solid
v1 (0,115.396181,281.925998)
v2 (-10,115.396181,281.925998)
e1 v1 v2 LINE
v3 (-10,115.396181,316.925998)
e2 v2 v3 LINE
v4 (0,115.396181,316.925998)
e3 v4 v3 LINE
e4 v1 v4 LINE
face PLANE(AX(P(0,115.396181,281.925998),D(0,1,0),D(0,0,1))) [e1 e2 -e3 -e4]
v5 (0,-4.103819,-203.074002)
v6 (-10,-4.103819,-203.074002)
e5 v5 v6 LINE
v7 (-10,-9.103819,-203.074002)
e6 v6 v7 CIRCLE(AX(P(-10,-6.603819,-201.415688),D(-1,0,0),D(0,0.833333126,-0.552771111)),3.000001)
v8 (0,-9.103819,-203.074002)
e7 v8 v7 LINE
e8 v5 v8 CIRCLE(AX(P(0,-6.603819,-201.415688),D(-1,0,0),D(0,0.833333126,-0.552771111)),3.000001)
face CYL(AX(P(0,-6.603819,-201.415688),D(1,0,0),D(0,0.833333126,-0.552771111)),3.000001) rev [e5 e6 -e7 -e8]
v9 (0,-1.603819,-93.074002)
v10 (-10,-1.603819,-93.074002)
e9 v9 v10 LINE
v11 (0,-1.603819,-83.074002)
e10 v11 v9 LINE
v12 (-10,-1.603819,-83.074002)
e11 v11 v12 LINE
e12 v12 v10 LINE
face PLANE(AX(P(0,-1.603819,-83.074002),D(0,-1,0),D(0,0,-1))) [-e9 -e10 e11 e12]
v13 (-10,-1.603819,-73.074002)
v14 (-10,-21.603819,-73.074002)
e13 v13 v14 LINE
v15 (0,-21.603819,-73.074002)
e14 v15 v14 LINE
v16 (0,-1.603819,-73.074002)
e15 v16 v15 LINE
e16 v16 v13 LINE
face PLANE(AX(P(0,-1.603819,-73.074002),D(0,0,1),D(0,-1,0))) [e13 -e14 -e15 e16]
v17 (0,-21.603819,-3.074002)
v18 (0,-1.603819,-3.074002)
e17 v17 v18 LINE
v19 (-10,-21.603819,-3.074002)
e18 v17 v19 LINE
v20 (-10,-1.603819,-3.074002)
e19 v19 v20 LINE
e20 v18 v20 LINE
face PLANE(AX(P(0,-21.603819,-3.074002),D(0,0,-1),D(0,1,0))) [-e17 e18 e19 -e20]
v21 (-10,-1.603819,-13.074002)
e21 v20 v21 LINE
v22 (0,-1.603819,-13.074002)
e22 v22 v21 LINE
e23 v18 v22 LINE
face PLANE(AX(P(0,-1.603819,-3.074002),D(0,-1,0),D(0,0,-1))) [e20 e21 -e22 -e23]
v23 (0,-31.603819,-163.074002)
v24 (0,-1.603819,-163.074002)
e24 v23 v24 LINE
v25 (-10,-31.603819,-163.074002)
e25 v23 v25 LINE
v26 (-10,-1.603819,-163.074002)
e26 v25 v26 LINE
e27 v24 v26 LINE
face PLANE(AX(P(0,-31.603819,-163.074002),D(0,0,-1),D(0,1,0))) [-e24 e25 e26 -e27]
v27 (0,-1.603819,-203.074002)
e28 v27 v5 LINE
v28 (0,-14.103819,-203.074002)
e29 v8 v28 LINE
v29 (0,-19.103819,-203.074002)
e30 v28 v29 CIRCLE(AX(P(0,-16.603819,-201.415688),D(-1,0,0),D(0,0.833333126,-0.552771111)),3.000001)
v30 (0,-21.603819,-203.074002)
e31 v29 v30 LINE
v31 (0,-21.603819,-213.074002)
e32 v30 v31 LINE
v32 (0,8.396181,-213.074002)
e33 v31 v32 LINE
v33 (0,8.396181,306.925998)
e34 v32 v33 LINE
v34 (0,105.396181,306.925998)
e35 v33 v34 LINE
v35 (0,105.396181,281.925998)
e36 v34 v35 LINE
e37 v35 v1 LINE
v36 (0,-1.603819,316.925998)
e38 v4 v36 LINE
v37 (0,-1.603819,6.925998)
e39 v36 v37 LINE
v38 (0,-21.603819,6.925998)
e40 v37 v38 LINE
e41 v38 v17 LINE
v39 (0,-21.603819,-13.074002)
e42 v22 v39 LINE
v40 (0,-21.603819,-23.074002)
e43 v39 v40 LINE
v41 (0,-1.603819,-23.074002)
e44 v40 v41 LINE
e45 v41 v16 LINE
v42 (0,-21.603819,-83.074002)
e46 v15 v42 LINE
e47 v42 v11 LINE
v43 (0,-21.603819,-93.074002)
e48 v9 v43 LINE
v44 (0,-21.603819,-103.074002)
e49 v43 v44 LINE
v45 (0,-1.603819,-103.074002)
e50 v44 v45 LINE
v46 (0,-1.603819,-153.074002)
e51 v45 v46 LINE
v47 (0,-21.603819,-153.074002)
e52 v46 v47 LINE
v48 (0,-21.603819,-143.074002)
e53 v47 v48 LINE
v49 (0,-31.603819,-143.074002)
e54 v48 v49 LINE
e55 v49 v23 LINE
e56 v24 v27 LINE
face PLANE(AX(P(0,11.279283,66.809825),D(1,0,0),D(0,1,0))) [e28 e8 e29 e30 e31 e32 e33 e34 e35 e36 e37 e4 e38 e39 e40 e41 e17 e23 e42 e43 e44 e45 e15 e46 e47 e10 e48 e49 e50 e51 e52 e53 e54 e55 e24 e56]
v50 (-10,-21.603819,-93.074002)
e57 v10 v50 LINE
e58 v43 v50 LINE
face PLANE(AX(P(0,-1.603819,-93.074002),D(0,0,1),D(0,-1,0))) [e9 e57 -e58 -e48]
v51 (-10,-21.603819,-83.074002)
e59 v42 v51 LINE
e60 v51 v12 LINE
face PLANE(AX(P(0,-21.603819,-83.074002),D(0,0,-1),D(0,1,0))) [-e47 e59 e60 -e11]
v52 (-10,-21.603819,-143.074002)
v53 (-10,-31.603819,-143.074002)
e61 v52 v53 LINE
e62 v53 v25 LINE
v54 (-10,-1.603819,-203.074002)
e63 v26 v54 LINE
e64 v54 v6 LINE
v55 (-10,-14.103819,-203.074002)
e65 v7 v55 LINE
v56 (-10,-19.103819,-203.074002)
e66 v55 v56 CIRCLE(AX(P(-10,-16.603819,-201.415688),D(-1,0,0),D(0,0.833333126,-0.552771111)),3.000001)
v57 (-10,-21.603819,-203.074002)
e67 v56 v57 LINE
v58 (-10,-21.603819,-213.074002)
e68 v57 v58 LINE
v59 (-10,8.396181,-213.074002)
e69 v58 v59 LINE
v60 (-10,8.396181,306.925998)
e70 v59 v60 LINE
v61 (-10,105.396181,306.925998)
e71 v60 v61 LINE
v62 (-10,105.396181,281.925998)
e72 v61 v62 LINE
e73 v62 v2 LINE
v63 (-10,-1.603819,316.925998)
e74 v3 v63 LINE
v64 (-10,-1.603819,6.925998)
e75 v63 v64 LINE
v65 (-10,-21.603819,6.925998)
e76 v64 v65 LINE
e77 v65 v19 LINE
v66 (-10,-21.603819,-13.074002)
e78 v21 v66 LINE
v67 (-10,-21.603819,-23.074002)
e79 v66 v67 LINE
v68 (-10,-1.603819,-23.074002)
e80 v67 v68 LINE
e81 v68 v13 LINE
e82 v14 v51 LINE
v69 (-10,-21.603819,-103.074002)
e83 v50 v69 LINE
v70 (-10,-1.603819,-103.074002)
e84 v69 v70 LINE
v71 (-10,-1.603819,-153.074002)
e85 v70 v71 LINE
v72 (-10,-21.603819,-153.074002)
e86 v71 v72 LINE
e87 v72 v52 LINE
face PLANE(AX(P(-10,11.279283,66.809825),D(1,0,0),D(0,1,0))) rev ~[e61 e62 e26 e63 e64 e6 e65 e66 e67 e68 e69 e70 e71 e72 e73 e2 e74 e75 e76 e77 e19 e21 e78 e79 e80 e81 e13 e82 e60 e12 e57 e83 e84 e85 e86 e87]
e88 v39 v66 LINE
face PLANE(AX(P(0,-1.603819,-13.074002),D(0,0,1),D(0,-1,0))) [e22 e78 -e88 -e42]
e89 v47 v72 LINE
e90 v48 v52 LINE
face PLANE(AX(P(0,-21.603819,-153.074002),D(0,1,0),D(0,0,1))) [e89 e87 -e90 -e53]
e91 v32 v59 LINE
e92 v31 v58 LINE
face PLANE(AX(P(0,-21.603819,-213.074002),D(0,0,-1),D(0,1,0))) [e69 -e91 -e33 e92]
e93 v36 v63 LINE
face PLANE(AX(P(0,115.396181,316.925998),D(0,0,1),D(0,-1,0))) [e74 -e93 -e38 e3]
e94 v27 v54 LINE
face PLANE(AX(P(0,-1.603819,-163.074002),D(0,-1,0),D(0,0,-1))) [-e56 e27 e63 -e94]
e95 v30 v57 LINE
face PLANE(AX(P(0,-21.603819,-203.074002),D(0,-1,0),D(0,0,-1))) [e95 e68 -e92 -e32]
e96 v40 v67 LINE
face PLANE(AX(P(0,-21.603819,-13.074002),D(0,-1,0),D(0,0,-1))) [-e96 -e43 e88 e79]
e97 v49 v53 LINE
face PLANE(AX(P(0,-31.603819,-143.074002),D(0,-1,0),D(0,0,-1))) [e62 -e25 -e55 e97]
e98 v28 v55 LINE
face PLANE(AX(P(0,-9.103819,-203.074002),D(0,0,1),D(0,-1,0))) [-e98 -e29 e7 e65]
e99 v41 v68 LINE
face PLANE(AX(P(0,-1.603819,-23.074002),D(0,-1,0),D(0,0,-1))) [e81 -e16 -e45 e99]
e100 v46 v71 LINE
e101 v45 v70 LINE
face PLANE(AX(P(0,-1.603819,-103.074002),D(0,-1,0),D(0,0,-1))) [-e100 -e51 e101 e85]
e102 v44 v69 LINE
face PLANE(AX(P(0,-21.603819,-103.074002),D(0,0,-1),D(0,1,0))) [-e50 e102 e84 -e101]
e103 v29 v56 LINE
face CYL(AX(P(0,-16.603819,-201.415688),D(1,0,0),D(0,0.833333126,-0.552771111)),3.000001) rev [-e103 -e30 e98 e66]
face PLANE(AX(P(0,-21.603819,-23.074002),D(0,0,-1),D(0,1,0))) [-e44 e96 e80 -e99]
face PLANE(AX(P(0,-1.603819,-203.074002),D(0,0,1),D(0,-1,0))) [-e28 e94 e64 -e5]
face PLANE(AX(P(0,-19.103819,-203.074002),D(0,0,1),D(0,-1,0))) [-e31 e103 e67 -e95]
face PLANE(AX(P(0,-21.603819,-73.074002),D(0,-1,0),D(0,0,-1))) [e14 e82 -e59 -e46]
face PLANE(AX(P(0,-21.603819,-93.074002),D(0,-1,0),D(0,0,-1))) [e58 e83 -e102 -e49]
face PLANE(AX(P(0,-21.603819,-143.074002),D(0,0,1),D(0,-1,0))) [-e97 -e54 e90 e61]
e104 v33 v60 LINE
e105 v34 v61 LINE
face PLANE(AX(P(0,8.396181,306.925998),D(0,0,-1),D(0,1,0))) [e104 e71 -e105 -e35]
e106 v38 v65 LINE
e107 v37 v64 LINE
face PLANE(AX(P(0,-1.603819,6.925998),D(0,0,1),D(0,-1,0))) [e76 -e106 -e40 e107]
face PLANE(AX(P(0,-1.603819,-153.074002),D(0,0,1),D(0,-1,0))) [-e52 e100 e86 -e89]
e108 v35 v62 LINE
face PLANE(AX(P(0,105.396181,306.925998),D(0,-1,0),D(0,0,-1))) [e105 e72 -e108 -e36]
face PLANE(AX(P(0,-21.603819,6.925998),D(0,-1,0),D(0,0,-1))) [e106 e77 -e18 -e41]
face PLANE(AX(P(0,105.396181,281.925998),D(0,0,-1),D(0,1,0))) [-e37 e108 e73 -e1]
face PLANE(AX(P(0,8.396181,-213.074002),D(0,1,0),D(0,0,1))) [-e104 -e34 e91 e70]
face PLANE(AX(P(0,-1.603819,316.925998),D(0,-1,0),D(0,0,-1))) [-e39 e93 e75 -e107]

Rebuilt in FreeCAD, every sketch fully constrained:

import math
import FreeCAD as App
import Part
import Sketcher

V = App.Vector
Q = App.Units.Quantity

doc = App.newDocument("Part")
params = doc.addObject("Spreadsheet::Sheet", "Params")
for row, (alias, value) in enumerate([
    ("sketch1_radius", "3.000001 mm"),
    ("sketch1_width", "117 mm"),
    ("sketch1_width2", "20 mm"),
    ("sketch1_width3", "10 mm"),
    ("sketch1_width4", "5 mm"),
    ("pad1_length", "10 mm"),
], start=1):
    params.set(f"A{row}", alias)
    params.set(f"B{row}", "=" + value)
    params.setAlias(f"B{row}", alias)

body = doc.addObject("PartDesign::Body", "Body")

# Sketch on YZ plane
sketch1 = doc.addObject("Sketcher::SketchObject", "Sketch")
body.addObject(sketch1)
sketch1.AttachmentSupport = (doc.YZ_Plane, [""])
sketch1.MapMode = "FlatFace"
sketch1.addGeometry([
    Part.LineSegment(V(115.396181, 316.925998, 0), V(-1.603819, 316.925998, 0)),  # 0
    Part.LineSegment(V(-1.603819, 316.925998, 0), V(-1.603819, 6.925998, 0)),  # 1
    Part.LineSegment(V(-1.603819, 6.925998, 0), V(-21.603819, 6.925998, 0)),  # 2
    Part.LineSegment(V(-21.603819, 6.925998, 0), V(-21.603819, -3.074002, 0)),  # 3
    Part.LineSegment(V(-21.603819, -3.074002, 0), V(-1.603819, -3.074002, 0)),  # 4
    Part.LineSegment(V(-1.603819, -3.074002, 0), V(-1.603819, -13.074002, 0)),  # 5
    Part.LineSegment(V(-1.603819, -13.074002, 0), V(-21.603819, -13.074002, 0)),  # 6
    Part.LineSegment(V(-21.603819, -13.074002, 0), V(-21.603819, -23.074002, 0)),  # 7
    Part.LineSegment(V(-21.603819, -23.074002, 0), V(-1.603819, -23.074002, 0)),  # 8
    Part.LineSegment(V(-1.603819, -23.074002, 0), V(-1.603819, -73.074002, 0)),  # 9
    Part.LineSegment(V(-1.603819, -73.074002, 0), V(-21.603819, -73.074002, 0)),  # 10
    Part.LineSegment(V(-21.603819, -73.074002, 0), V(-21.603819, -83.074002, 0)),  # 11
    Part.LineSegment(V(-21.603819, -83.074002, 0), V(-1.603819, -83.074002, 0)),  # 12
    Part.LineSegment(V(-1.603819, -83.074002, 0), V(-1.603819, -93.074002, 0)),  # 13
    Part.LineSegment(V(-1.603819, -93.074002, 0), V(-21.603819, -93.074002, 0)),  # 14
    Part.LineSegment(V(-21.603819, -93.074002, 0), V(-21.603819, -103.074002, 0)),  # 15
    Part.LineSegment(V(-21.603819, -103.074002, 0), V(-1.603819, -103.074002, 0)),  # 16
    Part.LineSegment(V(-1.603819, -103.074002, 0), V(-1.603819, -153.074002, 0)),  # 17
    Part.LineSegment(V(-1.603819, -153.074002, 0), V(-21.603819, -153.074002, 0)),  # 18
    Part.LineSegment(V(-21.603819, -153.074002, 0), V(-21.603819, -143.074002, 0)),  # 19
    Part.LineSegment(V(-21.603819, -143.074002, 0), V(-31.603819, -143.074002, 0)),  # 20
    Part.LineSegment(V(-31.603819, -143.074002, 0), V(-31.603819, -163.074002, 0)),  # 21
    Part.LineSegment(V(-31.603819, -163.074002, 0), V(-1.603819, -163.074002, 0)),  # 22
    Part.LineSegment(V(-1.603819, -163.074002, 0), V(-1.603819, -203.074002, 0)),  # 23
    Part.LineSegment(V(-1.603819, -203.074002, 0), V(-4.103819, -203.074002, 0)),  # 24
    Part.ArcOfCircle(Part.Circle(V(-6.603819, -201.415688, 0), V(0, 0, 1), 3.000001), math.radians(-146.442669), math.radians(-33.557331)),  # 25
    Part.LineSegment(V(-9.103819, -203.074002, 0), V(-14.103819, -203.074002, 0)),  # 26
    Part.ArcOfCircle(Part.Circle(V(-16.603819, -201.415688, 0), V(0, 0, 1), 3.000001), math.radians(-146.442669), math.radians(-33.557331)),  # 27
    Part.LineSegment(V(-19.103819, -203.074002, 0), V(-21.603819, -203.074002, 0)),  # 28
    Part.LineSegment(V(-21.603819, -203.074002, 0), V(-21.603819, -213.074002, 0)),  # 29
    Part.LineSegment(V(-21.603819, -213.074002, 0), V(8.396181, -213.074002, 0)),  # 30
    Part.LineSegment(V(8.396181, -213.074002, 0), V(8.396181, 306.925998, 0)),  # 31
    Part.LineSegment(V(8.396181, 306.925998, 0), V(105.396181, 306.925998, 0)),  # 32
    Part.LineSegment(V(105.396181, 306.925998, 0), V(105.396181, 281.925998, 0)),  # 33
    Part.LineSegment(V(105.396181, 281.925998, 0), V(115.396181, 281.925998, 0)),  # 34
    Part.LineSegment(V(115.396181, 281.925998, 0), V(115.396181, 316.925998, 0)),  # 35
], False)
sketch1.addConstraint([
    Sketcher.Constraint("Coincident", 0, 2, 1, 1),
    Sketcher.Constraint("Coincident", 1, 2, 2, 1),
    Sketcher.Constraint("Coincident", 2, 2, 3, 1),
    Sketcher.Constraint("Coincident", 3, 2, 4, 1),
    Sketcher.Constraint("Coincident", 4, 2, 5, 1),
    Sketcher.Constraint("Coincident", 5, 2, 6, 1),
    Sketcher.Constraint("Coincident", 6, 2, 7, 1),
    Sketcher.Constraint("Coincident", 7, 2, 8, 1),
    Sketcher.Constraint("Coincident", 8, 2, 9, 1),
    Sketcher.Constraint("Coincident", 9, 2, 10, 1),
    Sketcher.Constraint("Coincident", 10, 2, 11, 1),
    Sketcher.Constraint("Coincident", 11, 2, 12, 1),
    Sketcher.Constraint("Coincident", 12, 2, 13, 1),
    Sketcher.Constraint("Coincident", 13, 2, 14, 1),
    Sketcher.Constraint("Coincident", 14, 2, 15, 1),
    Sketcher.Constraint("Coincident", 15, 2, 16, 1),
    Sketcher.Constraint("Coincident", 16, 2, 17, 1),
    Sketcher.Constraint("Coincident", 17, 2, 18, 1),
    Sketcher.Constraint("Coincident", 18, 2, 19, 1),
    Sketcher.Constraint("Coincident", 19, 2, 20, 1),
    Sketcher.Constraint("Coincident", 20, 2, 21, 1),
    Sketcher.Constraint("Coincident", 21, 2, 22, 1),
    Sketcher.Constraint("Coincident", 22, 2, 23, 1),
    Sketcher.Constraint("Coincident", 23, 2, 24, 1),
    Sketcher.Constraint("Coincident", 24, 2, 25, 2),
    Sketcher.Constraint("Coincident", 25, 1, 26, 1),
    Sketcher.Constraint("Coincident", 26, 2, 27, 2),
    Sketcher.Constraint("Coincident", 27, 1, 28, 1),
    Sketcher.Constraint("Coincident", 28, 2, 29, 1),
    Sketcher.Constraint("Coincident", 29, 2, 30, 1),
    Sketcher.Constraint("Coincident", 30, 2, 31, 1),
    Sketcher.Constraint("Coincident", 31, 2, 32, 1),
    Sketcher.Constraint("Coincident", 32, 2, 33, 1),
    Sketcher.Constraint("Coincident", 33, 2, 34, 1),
    Sketcher.Constraint("Coincident", 34, 2, 35, 1),
    Sketcher.Constraint("Coincident", 35, 2, 0, 1),
    Sketcher.Constraint("Horizontal", 0),
    Sketcher.Constraint("Vertical", 1),
    Sketcher.Constraint("Horizontal", 2),
    Sketcher.Constraint("Vertical", 3),
    Sketcher.Constraint("Horizontal", 4),
    Sketcher.Constraint("Vertical", 5),
    Sketcher.Constraint("Horizontal", 6),
    Sketcher.Constraint("Vertical", 7),
    Sketcher.Constraint("Horizontal", 8),
    Sketcher.Constraint("Vertical", 9),
    Sketcher.Constraint("Horizontal", 10),
    Sketcher.Constraint("Vertical", 11),
    Sketcher.Constraint("Horizontal", 12),
    Sketcher.Constraint("Vertical", 13),
    Sketcher.Constraint("Horizontal", 14),
    Sketcher.Constraint("Vertical", 15),
    Sketcher.Constraint("Horizontal", 16),
    Sketcher.Constraint("Vertical", 17),
    Sketcher.Constraint("Horizontal", 18),
    Sketcher.Constraint("Vertical", 19),
    Sketcher.Constraint("Horizontal", 20),
    Sketcher.Constraint("Vertical", 21),
    Sketcher.Constraint("Horizontal", 22),
    Sketcher.Constraint("Vertical", 23),
    Sketcher.Constraint("Horizontal", 24),
    Sketcher.Constraint("Horizontal", 26),
    Sketcher.Constraint("Horizontal", 28),
    Sketcher.Constraint("Vertical", 29),
    Sketcher.Constraint("Horizontal", 30),
    Sketcher.Constraint("Vertical", 31),
    Sketcher.Constraint("Horizontal", 32),
    Sketcher.Constraint("Vertical", 33),
    Sketcher.Constraint("Horizontal", 34),
    Sketcher.Constraint("Vertical", 35),
    Sketcher.Constraint("Equal", 25, 27),
    Sketcher.Constraint("Horizontal", 25, 3, 27, 3),
    Sketcher.Constraint("Horizontal", 24, 2, 25, 1),
    Sketcher.Constraint("Horizontal", 26, 2, 27, 1),
    Sketcher.Constraint("Vertical", 1, 2, 4, 2),
    Sketcher.Constraint("Vertical", 3, 2, 6, 2),
    Sketcher.Constraint("Vertical", 5, 2, 8, 2),
    Sketcher.Constraint("Vertical", 7, 2, 10, 2),
    Sketcher.Constraint("Vertical", 9, 2, 12, 2),
    Sketcher.Constraint("Vertical", 11, 2, 14, 2),
    Sketcher.Constraint("Vertical", 13, 2, 16, 2),
    Sketcher.Constraint("Vertical", 15, 2, 18, 2),
    Sketcher.Constraint("Vertical", 17, 2, 22, 2),
    Sketcher.Constraint("Vertical", 19, 2, 28, 2),
    Sketcher.Constraint("Equal", 24, 28),
    Sketcher.Constraint("Equal", 22, 30),
    Sketcher.Constraint("Equal", 20, 34),
    Sketcher.Constraint("Equal", 34, 3),
    Sketcher.Constraint("Equal", 3, 5),
    Sketcher.Constraint("Equal", 5, 7),
    Sketcher.Constraint("Equal", 7, 11),
    Sketcher.Constraint("Equal", 11, 13),
    Sketcher.Constraint("Equal", 13, 15),
    Sketcher.Constraint("Equal", 9, 17),
    Sketcher.Constraint("Equal", 15, 19),
    Sketcher.Constraint("Equal", 18, 21),
    Sketcher.Constraint("Equal", 19, 29),
    Sketcher.Constraint("Radius", 25, Q("3.000001 mm")),
    Sketcher.Constraint("DistanceX", 0, 2, 0, 1, Q("117 mm")),
    Sketcher.Constraint("DistanceX", 2, 2, 2, 1, Q("20 mm")),
    Sketcher.Constraint("DistanceX", 20, 2, 20, 1, Q("10 mm")),
    Sketcher.Constraint("DistanceX", 26, 2, 26, 1, Q("5 mm")),
    Sketcher.Constraint("DistanceY", 1, 2, 1, 1, Q("310 mm")),
    Sketcher.Constraint("DistanceY", 9, 2, 9, 1, Q("50 mm")),
    Sketcher.Constraint("DistanceY", 23, 2, 23, 1, Q("40 mm")),
    Sketcher.Constraint("DistanceY", 31, 1, 31, 2, Q("520 mm")),
    Sketcher.Constraint("DistanceY", 33, 2, 33, 1, Q("25 mm")),
    Sketcher.Constraint("DistanceX", 24, 2, 24, 1, Q("2.5 mm")),
    Sketcher.Constraint("DistanceY", -1, 1, 0, 2, Q("316.925998 mm")),
    Sketcher.Constraint("DistanceX", 25, 3, -1, 1, Q("6.603819 mm")),
])
sketch1.setExpression("Constraints[97]", "Params.sketch1_radius")
sketch1.setExpression("Constraints[98]", "Params.sketch1_width")
sketch1.setExpression("Constraints[99]", "Params.sketch1_width2")
sketch1.setExpression("Constraints[100]", "Params.sketch1_width3")
sketch1.setExpression("Constraints[101]", "Params.sketch1_width4")
pad1 = doc.addObject("PartDesign::Pad", "Pad")
body.addObject(pad1)
pad1.Profile = sketch1
pad1.setExpression("Length", "Params.pad1_length")
pad1.Reversed = True

doc.recompute()
